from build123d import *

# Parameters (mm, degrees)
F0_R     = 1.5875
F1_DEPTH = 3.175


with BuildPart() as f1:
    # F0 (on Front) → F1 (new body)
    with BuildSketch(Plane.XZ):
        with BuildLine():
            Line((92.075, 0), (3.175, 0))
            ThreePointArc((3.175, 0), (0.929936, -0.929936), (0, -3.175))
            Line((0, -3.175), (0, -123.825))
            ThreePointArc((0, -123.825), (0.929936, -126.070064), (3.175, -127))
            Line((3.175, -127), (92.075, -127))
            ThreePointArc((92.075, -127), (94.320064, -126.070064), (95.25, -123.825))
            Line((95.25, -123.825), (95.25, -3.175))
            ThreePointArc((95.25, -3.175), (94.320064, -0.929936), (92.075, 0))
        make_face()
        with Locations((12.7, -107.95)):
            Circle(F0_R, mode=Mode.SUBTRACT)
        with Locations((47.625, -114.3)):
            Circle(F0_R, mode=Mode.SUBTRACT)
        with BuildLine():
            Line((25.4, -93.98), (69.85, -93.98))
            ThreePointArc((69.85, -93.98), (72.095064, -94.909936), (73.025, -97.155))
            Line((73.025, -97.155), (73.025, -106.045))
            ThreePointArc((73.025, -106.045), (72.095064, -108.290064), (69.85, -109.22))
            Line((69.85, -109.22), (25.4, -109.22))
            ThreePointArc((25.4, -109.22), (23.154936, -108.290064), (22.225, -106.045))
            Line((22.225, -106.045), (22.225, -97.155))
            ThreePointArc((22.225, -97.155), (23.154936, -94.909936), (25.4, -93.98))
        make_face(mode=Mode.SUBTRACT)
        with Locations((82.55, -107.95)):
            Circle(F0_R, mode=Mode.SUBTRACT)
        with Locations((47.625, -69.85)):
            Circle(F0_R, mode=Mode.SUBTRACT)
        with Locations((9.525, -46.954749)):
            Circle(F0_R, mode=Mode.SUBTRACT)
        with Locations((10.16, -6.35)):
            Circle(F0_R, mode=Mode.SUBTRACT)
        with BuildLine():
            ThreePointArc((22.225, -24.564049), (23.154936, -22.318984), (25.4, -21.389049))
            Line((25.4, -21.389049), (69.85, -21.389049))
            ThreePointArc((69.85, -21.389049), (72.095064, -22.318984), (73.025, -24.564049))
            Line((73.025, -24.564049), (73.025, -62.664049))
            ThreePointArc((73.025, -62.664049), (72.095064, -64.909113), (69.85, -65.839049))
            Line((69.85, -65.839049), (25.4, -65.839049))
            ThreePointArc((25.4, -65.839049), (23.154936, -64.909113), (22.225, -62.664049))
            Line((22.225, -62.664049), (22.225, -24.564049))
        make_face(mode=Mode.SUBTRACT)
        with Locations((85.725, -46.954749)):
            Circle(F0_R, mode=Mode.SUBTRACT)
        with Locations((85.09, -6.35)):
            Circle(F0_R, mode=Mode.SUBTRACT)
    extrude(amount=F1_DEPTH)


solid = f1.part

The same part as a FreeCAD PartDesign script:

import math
import FreeCAD as App
import Part
import Sketcher

V = App.Vector
Q = App.Units.Quantity

doc = App.newDocument("Part")
params = doc.addObject("Spreadsheet::Sheet", "Params")
for row, (alias, value) in enumerate([
    ("sketch1_diameter", "0.125 in"),
    ("sketch1_width", "3.5 in"),
    ("sketch1_height", "1.5 in"),
    ("sketch1_radius", "0.125 in"),
    ("sketch1_height2", "0.35 in"),
    ("pad1_length", "0.125 in"),
], start=1):
    params.set(f"A{row}", alias)
    params.set(f"B{row}", "=" + value)
    params.setAlias(f"B{row}", alias)

body = doc.addObject("PartDesign::Body", "Body")

# Sketch on XZ plane
sketch1 = body.newObject("Sketcher::SketchObject", "Sketch")
sketch1.AttachmentSupport = (doc.getObject("XZ_Plane"), [""])
sketch1.MapMode = "FlatFace"
sketch1.addGeometry([
    Part.LineSegment(V(92.1, 0, 0), V(3.2, 0, 0)),  # 0
    Part.ArcOfCircle(Part.Circle(V(3.2, -3.2, 0), V(0, 0, 1), 3.2), math.radians(90), math.radians(180)),  # 1
    Part.LineSegment(V(0, -3.2, 0), V(0, -123.8, 0)),  # 2
    Part.ArcOfCircle(Part.Circle(V(3.2, -123.8, 0), V(0, 0, 1), 3.2), math.radians(-180), math.radians(-90)),  # 3
    Part.LineSegment(V(3.2, -127, 0), V(92.1, -127, 0)),  # 4
    Part.ArcOfCircle(Part.Circle(V(92.1, -123.8, 0), V(0, 0, 1), 3.2), math.radians(-90), math.radians(0)),  # 5
    Part.LineSegment(V(95.2, -123.8, 0), V(95.2, -3.2, 0)),  # 6
    Part.ArcOfCircle(Part.Circle(V(92.1, -3.2, 0), V(0, 0, 1), 3.2), math.radians(0), math.radians(90)),  # 7
    Part.Circle(V(12.7, -108, 0), V(0, 0, 1), 1.6),  # 8
    Part.Circle(V(47.6, -114.3, 0), V(0, 0, 1), 1.6),  # 9
    Part.ArcOfCircle(Part.Circle(V(25.4, -97.2, 0), V(0, 0, 1), 3.2), math.radians(90), math.radians(180)),  # 10
    Part.LineSegment(V(25.4, -94, 0), V(69.8, -94, 0)),  # 11
    Part.ArcOfCircle(Part.Circle(V(69.8, -97.2, 0), V(0, 0, 1), 3.2), math.radians(0), math.radians(90)),  # 12
    Part.LineSegment(V(73, -97.2, 0), V(73, -106, 0)),  # 13
    Part.ArcOfCircle(Part.Circle(V(69.8, -106, 0), V(0, 0, 1), 3.2), math.radians(-90), math.radians(0)),  # 14
    Part.LineSegment(V(69.8, -109.2, 0), V(25.4, -109.2, 0)),  # 15
    Part.ArcOfCircle(Part.Circle(V(25.4, -106, 0), V(0, 0, 1), 3.2), math.radians(-180), math.radians(-90)),  # 16
    Part.LineSegment(V(22.2, -106, 0), V(22.2, -97.2, 0)),  # 17
    Part.Circle(V(82.5, -108, 0), V(0, 0, 1), 1.6),  # 18
    Part.Circle(V(47.6, -69.8, 0), V(0, 0, 1), 1.6),  # 19
    Part.Circle(V(9.5, -47, 0), V(0, 0, 1), 1.6),  # 20
    Part.Circle(V(10.2, -6.3, 0), V(0, 0, 1), 1.6),  # 21
    Part.LineSegment(V(22.2, -62.7, 0), V(22.2, -24.6, 0)),  # 22
    Part.ArcOfCircle(Part.Circle(V(25.4, -24.6, 0), V(0, 0, 1), 3.2), math.radians(90), math.radians(180)),  # 23
    Part.LineSegment(V(25.4, -21.4, 0), V(69.8, -21.4, 0)),  # 24
    Part.ArcOfCircle(Part.Circle(V(69.9, -24.6, 0), V(0, 0, 1), 3.2), math.radians(0), math.radians(90)),  # 25
    Part.LineSegment(V(73, -24.6, 0), V(73, -62.7, 0)),  # 26
    Part.ArcOfCircle(Part.Circle(V(69.8, -62.7, 0), V(0, 0, 1), 3.2), math.radians(-90), math.radians(0)),  # 27
    Part.LineSegment(V(69.8, -65.8, 0), V(25.4, -65.8, 0)),  # 28
    Part.ArcOfCircle(Part.Circle(V(25.4, -62.7, 0), V(0, 0, 1), 3.2), math.radians(-180), math.radians(-90)),  # 29
    Part.Circle(V(85.7, -47, 0), V(0, 0, 1), 1.6),  # 30
    Part.Circle(V(85.1, -6.3, 0), V(0, 0, 1), 1.6),  # 31
], False)
sketch1.addConstraint([
    Sketcher.Constraint("Tangent", 0, 2, 1, 1),
    Sketcher.Constraint("Tangent", 1, 2, 2, 1),
    Sketcher.Constraint("Tangent", 2, 2, 3, 1),
    Sketcher.Constraint("Tangent", 3, 2, 4, 1),
    Sketcher.Constraint("Tangent", 4, 2, 5, 1),
    Sketcher.Constraint("Tangent", 5, 2, 6, 1),
    Sketcher.Constraint("Tangent", 6, 2, 7, 1),
    Sketcher.Constraint("Tangent", 7, 2, 0, 1),
    Sketcher.Constraint("Tangent", 10, 1, 11, 1),
    Sketcher.Constraint("Tangent", 11, 2, 12, 2),
    Sketcher.Constraint("Tangent", 12, 1, 13, 1),
    Sketcher.Constraint("Tangent", 13, 2, 14, 2),
    Sketcher.Constraint("Tangent", 14, 1, 15, 1),
    Sketcher.Constraint("Tangent", 15, 2, 16, 2),
    Sketcher.Constraint("Tangent", 16, 1, 17, 1),
    Sketcher.Constraint("Tangent", 17, 2, 10, 2),
    Sketcher.Constraint("Tangent", 22, 2, 23, 2),
    Sketcher.Constraint("Tangent", 23, 1, 24, 1),
    Sketcher.Constraint("Tangent", 24, 2, 25, 2),
    Sketcher.Constraint("Tangent", 25, 1, 26, 1),
    Sketcher.Constraint("Tangent", 26, 2, 27, 2),
    Sketcher.Constraint("Tangent", 27, 1, 28, 1),
    Sketcher.Constraint("Tangent", 28, 2, 29, 2),
    Sketcher.Constraint("Tangent", 29, 1, 22, 1),
    Sketcher.Constraint("Horizontal", 0),
    Sketcher.Constraint("Vertical", 2),
    Sketcher.Constraint("Horizontal", 4),
    Sketcher.Constraint("Vertical", 6),
    Sketcher.Constraint("Horizontal", 11),
    Sketcher.Constraint("Vertical", 13),
    Sketcher.Constraint("Horizontal", 15),
    Sketcher.Constraint("Vertical", 17),
    Sketcher.Constraint("Vertical", 22),
    Sketcher.Constraint("Horizontal", 24),
    Sketcher.Constraint("Vertical", 26),
    Sketcher.Constraint("Horizontal", 28),
    Sketcher.Constraint("Equal", 1, 3),
    Sketcher.Constraint("Equal", 3, 5),
    Sketcher.Constraint("Equal", 5, 7),
    Sketcher.Constraint("Equal", 8, 9),
    Sketcher.Constraint("Equal", 7, 10),
    Sketcher.Constraint("Equal", 10, 12),
    Sketcher.Constraint("Equal", 12, 14),
    Sketcher.Constraint("Equal", 14, 16),
    Sketcher.Constraint("Equal", 9, 18),
    Sketcher.Constraint("Equal", 18, 19),
    Sketcher.Constraint("Equal", 19, 20),
    Sketcher.Constraint("Equal", 20, 21),
    Sketcher.Constraint("Equal", 16, 23),
    Sketcher.Constraint("Equal", 23, 25),
    Sketcher.Constraint("Equal", 25, 27),
    Sketcher.Constraint("Equal", 27, 29),
    Sketcher.Constraint("Equal", 21, 30),
    Sketcher.Constraint("Equal", 30, 31),
    Sketcher.Constraint("PointOnObject", 0, 2, -1),
    Sketcher.Constraint("PointOnObject", 1, 2, -2),
    Sketcher.Constraint("Horizontal", 8, 3, 18, 3),
    Sketcher.Constraint("Horizontal", 20, 3, 30, 3),
    Sketcher.Constraint("Horizontal", 21, 3, 31, 3),
    Sketcher.Constraint("Vertical", 9, 3, 19, 3),
    Sketcher.Constraint("Vertical", 16, 3, 23, 3),
    Sketcher.Constraint("Vertical", 14, 3, 25, 3),
    Sketcher.Constraint("Diameter", 8, Q("0.125 in")),
    Sketcher.Constraint("DistanceX", 0, 2, 0, 1, Q("3.5 in")),
    Sketcher.Constraint("DistanceY", 22, 1, 22, 2, Q("1.5 in")),
    Sketcher.Constraint("DistanceX", -1, 1, 10, 3, Q("1 in")),
    Sketcher.Constraint("DistanceY", 3, 2, -1, 1, Q("5 in")),
    Sketcher.Constraint("Radius", 1, Q("0.125 in")),
    Sketcher.Constraint("DistanceX", 14, 3, 5, 2, Q("1 in")),
    Sketcher.Constraint("DistanceX", 9, 3, 12, 1, Q("1 in")),
    Sketcher.Constraint("DistanceY", 13, 2, 13, 1, Q("0.35 in")),
    Sketcher.Constraint("DistanceX", -1, 1, 8, 3, Q("0.5 in")),
    Sketcher.Constraint("DistanceY", 9, 3, -1, 1, Q("4.5 in")),
    Sketcher.Constraint("DistanceX", -1, 1, 21, 3, Q("0.4 in")),
    Sketcher.Constraint("DistanceY", 10, 1, -1, 1, Q("3.7 in")),
    Sketcher.Constraint("DistanceX", 14, 3, 18, 3, Q("0.5 in")),
    Sketcher.Constraint("DistanceX", 20, 3, 19, 3, Q("1.5 in")),
    Sketcher.Constraint("DistanceY", 19, 3, 21, 3, Q("2.5 in")),
    Sketcher.Constraint("DistanceX", 19, 3, 30, 3, Q("1.5 in")),
    Sketcher.Constraint("DistanceX", 25, 3, 31, 3, Q("0.5999999 in")),
    Sketcher.Constraint("DistanceY", 8, 3, -1, 1, Q("4.25 in")),
    Sketcher.Constraint("DistanceY", 19, 3, -1, 1, Q("2.75 in")),
    Sketcher.Constraint("DistanceY", 20, 3, 23, 3, Q("22.390702 mm")),
    Sketcher.Constraint("DistanceY", 20, 3, -1, 1, Q("46.954749 mm")),
])
sketch1.setExpression("Constraints[62]", "Params.sketch1_diameter")
sketch1.setExpression("Constraints[63]", "Params.sketch1_width")
sketch1.setExpression("Constraints[64]", "Params.sketch1_height")
sketch1.setExpression("Constraints[67]", "Params.sketch1_radius")
sketch1.setExpression("Constraints[70]", "Params.sketch1_height2")
pad1 = body.newObject("PartDesign::Pad", "Pad")
pad1.Profile = sketch1
pad1.setExpression("Length", "Params.pad1_length")

doc.recompute()
